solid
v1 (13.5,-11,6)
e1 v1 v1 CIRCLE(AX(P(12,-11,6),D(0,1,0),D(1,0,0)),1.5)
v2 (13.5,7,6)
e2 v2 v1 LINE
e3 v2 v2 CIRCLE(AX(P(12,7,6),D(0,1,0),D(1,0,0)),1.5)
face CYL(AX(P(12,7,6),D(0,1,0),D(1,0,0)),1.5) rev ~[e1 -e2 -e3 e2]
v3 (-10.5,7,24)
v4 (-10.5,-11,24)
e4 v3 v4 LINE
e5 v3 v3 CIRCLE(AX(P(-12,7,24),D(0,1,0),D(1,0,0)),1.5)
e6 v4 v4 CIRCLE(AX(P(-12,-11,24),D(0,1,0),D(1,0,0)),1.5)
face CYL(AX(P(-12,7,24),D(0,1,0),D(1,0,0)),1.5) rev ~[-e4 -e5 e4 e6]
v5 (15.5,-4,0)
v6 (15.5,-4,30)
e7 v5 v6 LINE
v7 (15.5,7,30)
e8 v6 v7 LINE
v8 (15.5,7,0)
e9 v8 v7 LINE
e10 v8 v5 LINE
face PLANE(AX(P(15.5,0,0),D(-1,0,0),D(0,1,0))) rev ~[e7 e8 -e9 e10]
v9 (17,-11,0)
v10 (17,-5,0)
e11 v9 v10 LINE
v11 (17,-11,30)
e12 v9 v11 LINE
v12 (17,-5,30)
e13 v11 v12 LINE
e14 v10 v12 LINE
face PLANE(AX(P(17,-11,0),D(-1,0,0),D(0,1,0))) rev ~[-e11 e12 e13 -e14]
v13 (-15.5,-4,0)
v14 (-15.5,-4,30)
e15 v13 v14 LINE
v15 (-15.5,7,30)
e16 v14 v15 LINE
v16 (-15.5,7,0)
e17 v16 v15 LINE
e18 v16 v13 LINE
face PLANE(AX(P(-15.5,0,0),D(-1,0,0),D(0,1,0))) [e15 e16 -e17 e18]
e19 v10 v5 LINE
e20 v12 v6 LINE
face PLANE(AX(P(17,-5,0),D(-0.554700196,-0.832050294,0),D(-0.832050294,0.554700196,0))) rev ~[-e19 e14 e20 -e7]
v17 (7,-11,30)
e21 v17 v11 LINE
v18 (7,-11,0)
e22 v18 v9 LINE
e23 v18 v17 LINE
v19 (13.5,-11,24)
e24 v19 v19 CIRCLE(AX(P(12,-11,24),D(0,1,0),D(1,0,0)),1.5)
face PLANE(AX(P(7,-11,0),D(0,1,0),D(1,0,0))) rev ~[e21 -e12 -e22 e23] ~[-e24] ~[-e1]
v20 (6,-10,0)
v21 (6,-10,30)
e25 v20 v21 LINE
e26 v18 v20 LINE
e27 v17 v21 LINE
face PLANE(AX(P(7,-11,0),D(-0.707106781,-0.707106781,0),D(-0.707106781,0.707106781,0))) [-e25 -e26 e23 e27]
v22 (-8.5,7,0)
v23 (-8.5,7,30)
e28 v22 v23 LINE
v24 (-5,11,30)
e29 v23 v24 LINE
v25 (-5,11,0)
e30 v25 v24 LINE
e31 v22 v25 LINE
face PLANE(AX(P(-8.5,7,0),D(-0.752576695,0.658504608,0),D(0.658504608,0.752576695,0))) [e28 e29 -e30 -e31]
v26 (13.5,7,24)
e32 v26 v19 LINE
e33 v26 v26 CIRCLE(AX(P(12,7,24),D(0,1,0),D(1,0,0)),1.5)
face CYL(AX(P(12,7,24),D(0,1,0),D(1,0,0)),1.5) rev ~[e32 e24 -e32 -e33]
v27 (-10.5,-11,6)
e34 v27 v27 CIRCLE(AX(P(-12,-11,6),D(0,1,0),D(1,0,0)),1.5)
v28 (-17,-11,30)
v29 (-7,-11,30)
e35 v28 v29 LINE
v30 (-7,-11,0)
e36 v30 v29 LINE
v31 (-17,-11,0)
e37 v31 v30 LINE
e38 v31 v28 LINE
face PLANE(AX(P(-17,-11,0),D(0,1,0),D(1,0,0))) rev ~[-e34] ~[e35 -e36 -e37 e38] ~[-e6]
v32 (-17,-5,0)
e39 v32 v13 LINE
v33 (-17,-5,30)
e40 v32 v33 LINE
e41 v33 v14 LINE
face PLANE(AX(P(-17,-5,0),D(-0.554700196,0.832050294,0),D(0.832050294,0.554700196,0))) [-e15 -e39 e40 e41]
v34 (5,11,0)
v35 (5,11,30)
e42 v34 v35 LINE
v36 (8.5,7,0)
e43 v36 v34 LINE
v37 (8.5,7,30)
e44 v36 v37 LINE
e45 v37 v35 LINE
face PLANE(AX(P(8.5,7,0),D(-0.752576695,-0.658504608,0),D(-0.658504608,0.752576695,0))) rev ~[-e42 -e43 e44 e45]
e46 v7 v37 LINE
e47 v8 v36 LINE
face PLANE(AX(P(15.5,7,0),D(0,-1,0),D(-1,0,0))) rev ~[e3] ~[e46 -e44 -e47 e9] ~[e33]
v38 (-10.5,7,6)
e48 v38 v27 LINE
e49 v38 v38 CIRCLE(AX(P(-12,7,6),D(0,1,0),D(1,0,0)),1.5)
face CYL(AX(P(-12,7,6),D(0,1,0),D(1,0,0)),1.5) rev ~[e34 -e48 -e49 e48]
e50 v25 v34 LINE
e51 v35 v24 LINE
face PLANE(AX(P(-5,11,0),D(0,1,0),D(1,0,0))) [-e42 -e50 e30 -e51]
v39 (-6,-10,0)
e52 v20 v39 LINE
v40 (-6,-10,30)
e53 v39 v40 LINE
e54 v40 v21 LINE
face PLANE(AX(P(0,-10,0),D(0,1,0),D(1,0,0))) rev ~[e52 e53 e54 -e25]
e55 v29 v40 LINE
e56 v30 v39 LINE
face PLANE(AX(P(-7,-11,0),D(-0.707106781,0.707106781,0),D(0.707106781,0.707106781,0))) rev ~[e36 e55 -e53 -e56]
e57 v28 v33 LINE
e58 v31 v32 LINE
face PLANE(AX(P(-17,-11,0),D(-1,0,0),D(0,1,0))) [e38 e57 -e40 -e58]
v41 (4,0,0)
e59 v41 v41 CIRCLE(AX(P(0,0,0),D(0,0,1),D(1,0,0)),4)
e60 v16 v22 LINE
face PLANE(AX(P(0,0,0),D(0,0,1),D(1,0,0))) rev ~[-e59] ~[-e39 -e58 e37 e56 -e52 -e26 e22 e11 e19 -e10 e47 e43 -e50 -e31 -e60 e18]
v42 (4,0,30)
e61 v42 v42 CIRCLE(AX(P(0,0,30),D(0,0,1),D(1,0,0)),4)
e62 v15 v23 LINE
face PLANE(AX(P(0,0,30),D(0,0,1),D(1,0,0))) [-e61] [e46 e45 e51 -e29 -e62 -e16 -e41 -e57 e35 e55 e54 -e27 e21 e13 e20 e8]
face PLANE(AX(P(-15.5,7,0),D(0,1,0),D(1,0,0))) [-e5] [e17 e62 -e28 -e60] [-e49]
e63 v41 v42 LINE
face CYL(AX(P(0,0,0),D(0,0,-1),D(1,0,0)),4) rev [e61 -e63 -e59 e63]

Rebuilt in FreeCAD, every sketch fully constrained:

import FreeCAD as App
import Part
import Sketcher

doc = App.newDocument("Part")
body = doc.addObject("PartDesign::Body", "Body")

# Sketch on XY plane
sketch1 = body.newObject("Sketcher::SketchObject", "Sketch")
sketch1.AttachmentSupport = (doc.getObject("XY_Plane"), [""])
sketch1.MapMode = "FlatFace"
sketch1.addGeometry([
    Part.LineSegment(App.Vector(-15.5, 7, 0), App.Vector(-15.5, -4, 0)),  # 0
    Part.LineSegment(App.Vector(-15.5, -4, 0), App.Vector(-17, -5, 0)),  # 1
    Part.LineSegment(App.Vector(-17, -5, 0), App.Vector(-17, -11, 0)),  # 2
    Part.LineSegment(App.Vector(-17, -11, 0), App.Vector(-7, -11, 0)),  # 3
    Part.LineSegment(App.Vector(-7, -11, 0), App.Vector(-6, -10, 0)),  # 4
    Part.LineSegment(App.Vector(-6, -10, 0), App.Vector(6, -10, 0)),  # 5
    Part.LineSegment(App.Vector(6, -10, 0), App.Vector(7, -11, 0)),  # 6
    Part.LineSegment(App.Vector(7, -11, 0), App.Vector(17, -11, 0)),  # 7
    Part.LineSegment(App.Vector(17, -11, 0), App.Vector(17, -5, 0)),  # 8
    Part.LineSegment(App.Vector(17, -5, 0), App.Vector(15.5, -4, 0)),  # 9
    Part.LineSegment(App.Vector(15.5, -4, 0), App.Vector(15.5, 7, 0)),  # 10
    Part.LineSegment(App.Vector(15.5, 7, 0), App.Vector(8.5, 7, 0)),  # 11
    Part.LineSegment(App.Vector(8.5, 7, 0), App.Vector(5, 11, 0)),  # 12
    Part.LineSegment(App.Vector(5, 11, 0), App.Vector(-5, 11, 0)),  # 13
    Part.LineSegment(App.Vector(-5, 11, 0), App.Vector(-8.5, 7, 0)),  # 14
    Part.LineSegment(App.Vector(-8.5, 7, 0), App.Vector(-15.5, 7, 0)),  # 15
    Part.Circle(App.Vector(0, 0, 0), App.Vector(0, 0, 1), 4),  # 16
], False)
sketch1.addConstraint([
    Sketcher.Constraint("Coincident", 0, 2, 1, 1),
    Sketcher.Constraint("Coincident", 1, 2, 2, 1),
    Sketcher.Constraint("Coincident", 2, 2, 3, 1),
    Sketcher.Constraint("Coincident", 3, 2, 4, 1),
    Sketcher.Constraint("Coincident", 4, 2, 5, 1),
    Sketcher.Constraint("Coincident", 5, 2, 6, 1),
    Sketcher.Constraint("Coincident", 6, 2, 7, 1),
    Sketcher.Constraint("Coincident", 7, 2, 8, 1),
    Sketcher.Constraint("Coincident", 8, 2, 9, 1),
    Sketcher.Constraint("Coincident", 9, 2, 10, 1),
    Sketcher.Constraint("Coincident", 10, 2, 11, 1),
    Sketcher.Constraint("Coincident", 11, 2, 12, 1),
    Sketcher.Constraint("Coincident", 12, 2, 13, 1),
    Sketcher.Constraint("Coincident", 13, 2, 14, 1),
    Sketcher.Constraint("Coincident", 14, 2, 15, 1),
    Sketcher.Constraint("Coincident", 15, 2, 0, 1),
    Sketcher.Constraint("Vertical", 0),
    Sketcher.Constraint("Vertical", 2),
    Sketcher.Constraint("Horizontal", 3),
    Sketcher.Constraint("Horizontal", 5),
    Sketcher.Constraint("Horizontal", 7),
    Sketcher.Constraint("Vertical", 8),
    Sketcher.Constraint("Vertical", 10),
    Sketcher.Constraint("Horizontal", 11),
    Sketcher.Constraint("Horizontal", 13),
    Sketcher.Constraint("Horizontal", 15),
    Sketcher.Constraint("Coincident", 16, 3, -1, 1),
    Sketcher.Constraint("Symmetric", 3, 2, 6, 2, -2),
    Sketcher.Constraint("Symmetric", 1, 2, 8, 2, -2),
    Sketcher.Constraint("Symmetric", 0, 2, 9, 2, -2),
    Sketcher.Constraint("Symmetric", 11, 2, 14, 2, -2),
    Sketcher.Constraint("Perpendicular", 4, 6),
    Sketcher.Constraint("Equal", 7, 13),
    Sketcher.Constraint("Equal", 4, 6),
    Sketcher.Constraint("Equal", 12, 14),
    Sketcher.Constraint("Diameter", 16, 8.0),
    Sketcher.Constraint("DistanceX", 3, 1, 3, 2, 10.0),
    Sketcher.Constraint("DistanceX", 11, 2, 11, 1, 7.0),
    Sketcher.Constraint("DistanceY", 0, 2, 0, 1, 11.0),
    Sketcher.Constraint("DistanceY", 2, 2, 2, 1, 6.0),
    Sketcher.Constraint("DistanceX", 1, 2, -1, 1, 17.0),
    Sketcher.Constraint("DistanceY", 1, 2, -1, 1, 5.0),
    Sketcher.Constraint("DistanceX", 4, 2, -1, 1, 6.0),
    Sketcher.Constraint("DistanceY", -1, 1, 10, 2, 7.0),
    Sketcher.Constraint("DistanceY", -1, 1, 12, 2, 11.0),
    Sketcher.Constraint("DistanceX", 0, 2, -1, 1, 15.5),
])
pad1 = body.newObject("PartDesign::Pad", "Pad")
pad1.Profile = sketch1
pad1.Length = 30

# Sketch on XZ plane
sketch2 = body.newObject("Sketcher::SketchObject", "Sketch001")
sketch2.AttachmentSupport = (doc.getObject("XZ_Plane"), [""])
sketch2.MapMode = "FlatFace"
sketch2.AttachmentOffset = App.Placement(App.Vector(0, 0, -7), App.Rotation())
sketch2.addGeometry([
    Part.Circle(App.Vector(-12, 6, 0), App.Vector(0, 0, 1), 1.5),
    Part.Circle(App.Vector(12, 6, 0), App.Vector(0, 0, 1), 1.5),
    Part.Circle(App.Vector(12, 24, 0), App.Vector(0, 0, 1), 1.5),
    Part.Circle(App.Vector(-12, 24, 0), App.Vector(0, 0, 1), 1.5),
], False)
sketch2.addConstraint([
    Sketcher.Constraint("Equal", 0, 1),
    Sketcher.Constraint("Equal", 1, 2),
    Sketcher.Constraint("Equal", 2, 3),
    Sketcher.Constraint("Symmetric", 0, 3, 1, 3, -2),
    Sketcher.Constraint("Symmetric", 2, 3, 3, 3, -2),
    Sketcher.Constraint("Vertical", 1, 3, 2, 3),
    Sketcher.Constraint("Diameter", 0, 3.0),
    Sketcher.Constraint("DistanceY", -1, 1, 2, 3, 24.0),
    Sketcher.Constraint("DistanceX", 0, 3, 1, 3, 24.0),
    Sketcher.Constraint("DistanceY", 1, 3, 2, 3, 18.0),
])
pocket1 = body.newObject("PartDesign::Pocket", "Pocket")
pocket1.Profile = sketch2
pocket1.Type = "ThroughAll"
pocket1.Reversed = True

doc.recompute()
